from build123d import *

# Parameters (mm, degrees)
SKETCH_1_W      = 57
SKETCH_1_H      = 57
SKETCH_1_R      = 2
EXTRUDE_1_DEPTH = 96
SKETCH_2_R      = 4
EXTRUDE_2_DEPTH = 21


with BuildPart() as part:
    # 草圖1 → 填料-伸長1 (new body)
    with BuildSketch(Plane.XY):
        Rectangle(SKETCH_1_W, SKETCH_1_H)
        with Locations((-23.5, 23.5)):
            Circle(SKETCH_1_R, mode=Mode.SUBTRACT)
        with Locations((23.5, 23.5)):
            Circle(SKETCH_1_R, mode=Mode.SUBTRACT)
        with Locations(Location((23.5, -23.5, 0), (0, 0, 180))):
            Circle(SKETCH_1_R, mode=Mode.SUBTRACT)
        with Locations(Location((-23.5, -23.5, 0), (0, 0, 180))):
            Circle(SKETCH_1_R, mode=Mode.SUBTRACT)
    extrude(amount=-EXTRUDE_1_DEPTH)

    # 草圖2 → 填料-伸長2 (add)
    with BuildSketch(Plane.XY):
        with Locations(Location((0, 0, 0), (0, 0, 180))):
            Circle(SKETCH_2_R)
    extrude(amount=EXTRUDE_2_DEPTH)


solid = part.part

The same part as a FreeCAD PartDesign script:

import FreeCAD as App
import Part
import Sketcher
from FreeCAD import Vector
Q = App.Units.Quantity

doc = App.newDocument("Part")
body = doc.addObject("PartDesign::Body", "Body")

# Sketch on XY plane
sketch1 = body.newObject("Sketcher::SketchObject", "Sketch")
sketch1.AttachmentSupport = (doc.getObject("XY_Plane"), [""])
sketch1.MapMode = "FlatFace"
sketch1.addGeometry([
    Part.LineSegment(Vector(-28.5, 28.5, 0), Vector(-28.5, -28.5, 0)),  # 0
    Part.LineSegment(Vector(-28.5, -28.5, 0), Vector(28.5, -28.5, 0)),  # 1
    Part.LineSegment(Vector(28.5, -28.5, 0), Vector(28.5, 28.5, 0)),  # 2
    Part.LineSegment(Vector(28.5, 28.5, 0), Vector(-28.5, 28.5, 0)),  # 3
    Part.Circle(Vector(-23.5, -23.5, 0), Vector(0, 0, 1), 2),  # 4
    Part.Circle(Vector(23.5, -23.5, 0), Vector(0, 0, 1), 2),  # 5
    Part.Circle(Vector(-23.5, 23.5, 0), Vector(0, 0, 1), 2),  # 6
    Part.Circle(Vector(23.5, 23.5, 0), Vector(0, 0, 1), 2),  # 7
], False)
sketch1.addConstraint([
    Sketcher.Constraint("Coincident", 0, 2, 1, 1),
    Sketcher.Constraint("Coincident", 1, 2, 2, 1),
    Sketcher.Constraint("Coincident", 2, 2, 3, 1),
    Sketcher.Constraint("Coincident", 3, 2, 0, 1),
    Sketcher.Constraint("Vertical", 0),
    Sketcher.Constraint("Horizontal", 1),
    Sketcher.Constraint("Vertical", 2),
    Sketcher.Constraint("Horizontal", 3),
    Sketcher.Constraint("Equal", 4, 5),
    Sketcher.Constraint("Equal", 5, 6),
    Sketcher.Constraint("Equal", 6, 7),
    Sketcher.Constraint("Symmetric", 5, 3, 6, 3, -1, 1),
    Sketcher.Constraint("Symmetric", 4, 3, 7, 3, -1, 1),
    Sketcher.Constraint("Symmetric", 0, 2, 2, 2, -1, 1),
    Sketcher.Constraint("Symmetric", 4, 3, 5, 3, -2),
    Sketcher.Constraint("Equal", 3, 0),
    Sketcher.Constraint("Diameter", 4, Q("4 mm")),
    Sketcher.Constraint("DistanceX", 1, 1, 1, 2, Q("57 mm")),
    Sketcher.Constraint("DistanceX", 4, 3, 5, 3, Q("47 mm")),
    Sketcher.Constraint("DistanceY", 4, 3, 6, 3, Q("47 mm")),
])
pad1 = body.newObject("PartDesign::Pad", "Pad")
pad1.Profile = sketch1
pad1.Length = 96
pad1.Reversed = True

# Sketch on XY plane
sketch2 = body.newObject("Sketcher::SketchObject", "Sketch001")
sketch2.AttachmentSupport = (doc.getObject("XY_Plane"), [""])
sketch2.MapMode = "FlatFace"
sketch2.addGeometry(Part.Circle(Vector(0, 0, 0), Vector(0, 0, 1), 4), False)
sketch2.addConstraint([
    Sketcher.Constraint("Coincident", 0, 3, -1, 1),
    Sketcher.Constraint("Diameter", 0, Q("8 mm")),
])
pad2 = body.newObject("PartDesign::Pad", "Pad001")
pad2.Profile = sketch2
pad2.Length = 21

doc.recompute()
